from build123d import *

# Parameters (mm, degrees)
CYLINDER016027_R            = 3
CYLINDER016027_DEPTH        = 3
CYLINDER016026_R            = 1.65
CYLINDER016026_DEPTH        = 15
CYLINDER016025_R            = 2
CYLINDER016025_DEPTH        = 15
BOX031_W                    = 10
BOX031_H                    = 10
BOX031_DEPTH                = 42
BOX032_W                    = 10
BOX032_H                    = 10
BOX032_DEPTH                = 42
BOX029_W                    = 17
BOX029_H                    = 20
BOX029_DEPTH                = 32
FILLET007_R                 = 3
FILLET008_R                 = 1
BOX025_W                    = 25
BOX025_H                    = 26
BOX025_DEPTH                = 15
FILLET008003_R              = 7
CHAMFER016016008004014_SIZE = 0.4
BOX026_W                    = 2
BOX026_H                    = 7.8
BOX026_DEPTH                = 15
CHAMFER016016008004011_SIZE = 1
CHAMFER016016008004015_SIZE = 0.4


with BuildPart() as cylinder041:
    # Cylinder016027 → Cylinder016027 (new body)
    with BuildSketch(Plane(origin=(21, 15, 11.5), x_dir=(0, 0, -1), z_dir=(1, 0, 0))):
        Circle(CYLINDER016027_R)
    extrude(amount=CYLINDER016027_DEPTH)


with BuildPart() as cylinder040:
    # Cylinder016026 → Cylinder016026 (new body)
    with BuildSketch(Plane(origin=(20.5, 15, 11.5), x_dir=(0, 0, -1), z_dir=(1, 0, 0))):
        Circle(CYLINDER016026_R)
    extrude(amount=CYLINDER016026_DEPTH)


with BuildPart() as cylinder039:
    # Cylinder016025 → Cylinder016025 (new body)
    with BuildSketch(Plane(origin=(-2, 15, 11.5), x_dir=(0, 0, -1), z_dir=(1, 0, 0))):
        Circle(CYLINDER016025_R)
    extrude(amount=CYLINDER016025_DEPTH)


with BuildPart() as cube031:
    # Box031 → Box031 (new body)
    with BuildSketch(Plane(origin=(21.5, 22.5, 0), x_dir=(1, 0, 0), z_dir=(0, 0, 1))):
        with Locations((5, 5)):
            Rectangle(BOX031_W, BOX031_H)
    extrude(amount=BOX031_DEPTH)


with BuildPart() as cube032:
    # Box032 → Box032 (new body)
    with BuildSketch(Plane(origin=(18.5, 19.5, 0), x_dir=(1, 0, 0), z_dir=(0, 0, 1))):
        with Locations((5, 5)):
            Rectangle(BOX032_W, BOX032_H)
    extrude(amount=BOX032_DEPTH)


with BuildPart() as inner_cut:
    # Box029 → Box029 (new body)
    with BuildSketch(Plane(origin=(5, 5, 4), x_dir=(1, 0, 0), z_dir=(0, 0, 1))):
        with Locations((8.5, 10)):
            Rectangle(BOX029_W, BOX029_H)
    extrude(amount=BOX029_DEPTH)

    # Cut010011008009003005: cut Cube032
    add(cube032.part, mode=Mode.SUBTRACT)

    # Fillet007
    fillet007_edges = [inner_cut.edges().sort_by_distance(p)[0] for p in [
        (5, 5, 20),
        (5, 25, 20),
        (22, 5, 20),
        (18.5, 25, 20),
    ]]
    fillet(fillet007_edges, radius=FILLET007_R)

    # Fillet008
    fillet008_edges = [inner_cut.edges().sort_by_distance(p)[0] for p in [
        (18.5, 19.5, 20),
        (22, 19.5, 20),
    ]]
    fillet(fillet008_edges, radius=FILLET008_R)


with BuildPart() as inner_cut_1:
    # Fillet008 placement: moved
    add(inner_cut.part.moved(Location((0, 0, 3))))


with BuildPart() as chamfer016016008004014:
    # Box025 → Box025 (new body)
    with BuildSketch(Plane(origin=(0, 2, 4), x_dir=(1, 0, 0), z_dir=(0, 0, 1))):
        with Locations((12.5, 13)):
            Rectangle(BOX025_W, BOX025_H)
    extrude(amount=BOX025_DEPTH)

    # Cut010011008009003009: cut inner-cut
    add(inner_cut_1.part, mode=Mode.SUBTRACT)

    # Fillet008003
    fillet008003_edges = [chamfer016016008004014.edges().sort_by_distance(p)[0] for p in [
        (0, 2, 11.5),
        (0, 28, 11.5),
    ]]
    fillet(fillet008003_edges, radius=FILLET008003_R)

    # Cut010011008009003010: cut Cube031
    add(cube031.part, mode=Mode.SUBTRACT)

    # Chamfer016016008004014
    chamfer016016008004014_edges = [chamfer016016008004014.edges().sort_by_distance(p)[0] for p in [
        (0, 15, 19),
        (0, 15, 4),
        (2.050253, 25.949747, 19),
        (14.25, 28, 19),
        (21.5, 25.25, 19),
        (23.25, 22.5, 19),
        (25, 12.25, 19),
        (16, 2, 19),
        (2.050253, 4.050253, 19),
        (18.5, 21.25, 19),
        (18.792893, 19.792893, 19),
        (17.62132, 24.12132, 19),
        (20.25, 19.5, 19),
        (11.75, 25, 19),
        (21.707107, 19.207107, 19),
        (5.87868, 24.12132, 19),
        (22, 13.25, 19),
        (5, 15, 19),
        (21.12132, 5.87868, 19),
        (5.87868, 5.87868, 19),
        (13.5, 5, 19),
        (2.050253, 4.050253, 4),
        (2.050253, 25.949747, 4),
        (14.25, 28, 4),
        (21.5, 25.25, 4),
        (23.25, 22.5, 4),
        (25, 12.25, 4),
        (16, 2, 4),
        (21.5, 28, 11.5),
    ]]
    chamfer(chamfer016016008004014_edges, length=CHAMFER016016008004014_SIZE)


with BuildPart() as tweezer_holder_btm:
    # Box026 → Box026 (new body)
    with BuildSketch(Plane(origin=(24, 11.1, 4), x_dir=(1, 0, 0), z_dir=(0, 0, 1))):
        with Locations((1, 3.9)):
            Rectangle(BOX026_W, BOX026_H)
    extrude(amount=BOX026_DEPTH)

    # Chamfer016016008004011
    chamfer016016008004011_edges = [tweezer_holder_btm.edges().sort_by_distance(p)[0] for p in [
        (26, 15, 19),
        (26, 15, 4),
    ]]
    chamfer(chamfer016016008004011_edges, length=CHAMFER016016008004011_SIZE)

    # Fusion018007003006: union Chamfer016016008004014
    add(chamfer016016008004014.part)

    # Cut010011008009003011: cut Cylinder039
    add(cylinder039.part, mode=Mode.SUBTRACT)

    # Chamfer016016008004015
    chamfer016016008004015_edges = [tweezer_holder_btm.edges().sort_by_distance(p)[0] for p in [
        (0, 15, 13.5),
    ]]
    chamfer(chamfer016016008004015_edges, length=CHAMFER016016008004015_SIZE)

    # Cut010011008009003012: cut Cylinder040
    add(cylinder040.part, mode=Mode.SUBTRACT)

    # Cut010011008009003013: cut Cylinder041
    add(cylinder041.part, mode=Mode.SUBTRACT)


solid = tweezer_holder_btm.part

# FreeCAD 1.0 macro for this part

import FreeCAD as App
import Part
import Sketcher
from FreeCAD import Vector
Q = App.Units.Quantity


def edges_at(feature, points):
    """Names of the edges that pass closest to the given points."""
    edges = feature.Shape.Edges
    near = lambda p: min(range(len(edges)), key=lambda i: edges[i].distToShape(Part.Vertex(*p))[0])
    return sorted({f"Edge{near(p) + 1}" for p in points})

doc = App.newDocument("Part")
body = doc.addObject("PartDesign::Body", "Body")

# Sketch on YZ plane
sketch1 = body.newObject("Sketcher::SketchObject", "Sketch")
sketch1.AttachmentSupport = (doc.getObject("YZ_Plane"), [""])
sketch1.MapMode = "FlatFace"
sketch1.AttachmentOffset = App.Placement(Vector(0, 0, 21), App.Rotation())
sketch1.addGeometry(Part.Circle(Vector(15, 11.5, 0), Vector(0, 0, 1), 3), False)
sketch1.addConstraint([
    Sketcher.Constraint("Diameter", 0, Q("6 mm")),
    Sketcher.Constraint("DistanceX", -1, 1, 0, 3, Q("15 mm")),
    Sketcher.Constraint("DistanceY", -1, 1, 0, 3, Q("11.5 mm")),
])
pad1 = body.newObject("PartDesign::Pad", "Pad")
pad1.Profile = sketch1
pad1.Length = 3
body2 = doc.addObject("PartDesign::Body", "Body001")

# Sketch on YZ plane
sketch2 = body2.newObject("Sketcher::SketchObject", "Sketch001")
sketch2.AttachmentSupport = (doc.getObject("YZ_Plane001"), [""])
sketch2.MapMode = "FlatFace"
sketch2.AttachmentOffset = App.Placement(Vector(0, 0, 20.5), App.Rotation())
sketch2.addGeometry(Part.Circle(Vector(15, 11.5, 0), Vector(0, 0, 1), 1.6), False)
sketch2.addConstraint([
    Sketcher.Constraint("Diameter", 0, Q("3.3 mm")),
    Sketcher.Constraint("DistanceX", -1, 1, 0, 3, Q("15 mm")),
    Sketcher.Constraint("DistanceY", -1, 1, 0, 3, Q("11.5 mm")),
])
pad2 = body2.newObject("PartDesign::Pad", "Pad001")
pad2.Profile = sketch2
pad2.Length = 15
body3 = doc.addObject("PartDesign::Body", "Body002")

# Sketch on YZ plane
sketch3 = body3.newObject("Sketcher::SketchObject", "Sketch002")
sketch3.AttachmentSupport = (doc.getObject("YZ_Plane002"), [""])
sketch3.MapMode = "FlatFace"
sketch3.AttachmentOffset = App.Placement(Vector(0, 0, -2), App.Rotation())
sketch3.addGeometry(Part.Circle(Vector(15, 11.5, 0), Vector(0, 0, 1), 2), False)
sketch3.addConstraint([
    Sketcher.Constraint("Diameter", 0, Q("4 mm")),
    Sketcher.Constraint("DistanceX", -1, 1, 0, 3, Q("15 mm")),
    Sketcher.Constraint("DistanceY", -1, 1, 0, 3, Q("11.5 mm")),
])
pad3 = body3.newObject("PartDesign::Pad", "Pad002")
pad3.Profile = sketch3
pad3.Length = 15
body4 = doc.addObject("PartDesign::Body", "Body003")

# Sketch on XY plane
sketch4 = body4.newObject("Sketcher::SketchObject", "Sketch003")
sketch4.AttachmentSupport = (doc.getObject("XY_Plane003"), [""])
sketch4.MapMode = "FlatFace"
sketch4.addGeometry([
    Part.LineSegment(Vector(22, 32, 0), Vector(22, 22, 0)),
    Part.LineSegment(Vector(22, 22, 0), Vector(32, 22, 0)),
    Part.LineSegment(Vector(32, 22, 0), Vector(32, 32, 0)),
    Part.LineSegment(Vector(32, 32, 0), Vector(22, 32, 0)),
], False)
sketch4.addConstraint([
    Sketcher.Constraint("Coincident", 0, 2, 1, 1),
    Sketcher.Constraint("Coincident", 1, 2, 2, 1),
    Sketcher.Constraint("Coincident", 2, 2, 3, 1),
    Sketcher.Constraint("Coincident", 3, 2, 0, 1),
    Sketcher.Constraint("Vertical", 0),
    Sketcher.Constraint("Horizontal", 1),
    Sketcher.Constraint("Vertical", 2),
    Sketcher.Constraint("Horizontal", 3),
    Sketcher.Constraint("Equal", 3, 0),
    Sketcher.Constraint("DistanceX", 1, 1, 1, 2, Q("10 mm")),
    Sketcher.Constraint("DistanceX", -1, 1, 0, 2, Q("21.5 mm")),
    Sketcher.Constraint("DistanceY", -1, 1, 0, 2, Q("22.5 mm")),
])
pad4 = body4.newObject("PartDesign::Pad", "Pad003")
pad4.Profile = sketch4
pad4.Length = 42
body5 = doc.addObject("PartDesign::Body", "Body004")

# Sketch on XY plane
sketch5 = body5.newObject("Sketcher::SketchObject", "Sketch004")
sketch5.AttachmentSupport = (doc.getObject("XY_Plane004"), [""])
sketch5.MapMode = "FlatFace"
sketch5.addGeometry([
    Part.LineSegment(Vector(18, 30, 0), Vector(18, 20, 0)),
    Part.LineSegment(Vector(18, 20, 0), Vector(28, 20, 0)),
    Part.LineSegment(Vector(28, 20, 0), Vector(28, 30, 0)),
    Part.LineSegment(Vector(28, 30, 0), Vector(18, 30, 0)),
], False)
sketch5.addConstraint([
    Sketcher.Constraint("Coincident", 0, 2, 1, 1),
    Sketcher.Constraint("Coincident", 1, 2, 2, 1),
    Sketcher.Constraint("Coincident", 2, 2, 3, 1),
    Sketcher.Constraint("Coincident", 3, 2, 0, 1),
    Sketcher.Constraint("Vertical", 0),
    Sketcher.Constraint("Horizontal", 1),
    Sketcher.Constraint("Vertical", 2),
    Sketcher.Constraint("Horizontal", 3),
    Sketcher.Constraint("Equal", 3, 0),
    Sketcher.Constraint("DistanceX", 1, 1, 1, 2, Q("10 mm")),
    Sketcher.Constraint("DistanceX", -1, 1, 0, 2, Q("18.5 mm")),
    Sketcher.Constraint("DistanceY", -1, 1, 0, 2, Q("19.5 mm")),
])
pad5 = body5.newObject("PartDesign::Pad", "Pad004")
pad5.Profile = sketch5
pad5.Length = 42
body6 = doc.addObject("PartDesign::Body", "Body005")

# Sketch on XY plane
sketch6 = body6.newObject("Sketcher::SketchObject", "Sketch005")
sketch6.AttachmentSupport = (doc.getObject("XY_Plane005"), [""])
sketch6.MapMode = "FlatFace"
sketch6.AttachmentOffset = App.Placement(Vector(0, 0, 4), App.Rotation())
sketch6.addGeometry([
    Part.LineSegment(Vector(5, 25, 0), Vector(5, 5, 0)),
    Part.LineSegment(Vector(5, 5, 0), Vector(22, 5, 0)),
    Part.LineSegment(Vector(22, 5, 0), Vector(22, 25, 0)),
    Part.LineSegment(Vector(22, 25, 0), Vector(5, 25, 0)),
], False)
sketch6.addConstraint([
    Sketcher.Constraint("Coincident", 0, 2, 1, 1),
    Sketcher.Constraint("Coincident", 1, 2, 2, 1),
    Sketcher.Constraint("Coincident", 2, 2, 3, 1),
    Sketcher.Constraint("Coincident", 3, 2, 0, 1),
    Sketcher.Constraint("Vertical", 0),
    Sketcher.Constraint("Horizontal", 1),
    Sketcher.Constraint("Vertical", 2),
    Sketcher.Constraint("Horizontal", 3),
    Sketcher.Constraint("DistanceX", 1, 1, 1, 2, Q("17 mm")),
    Sketcher.Constraint("DistanceY", 0, 2, 0, 1, Q("20 mm")),
    Sketcher.Constraint("DistanceX", -1, 1, 0, 2, Q("5 mm")),
    Sketcher.Constraint("DistanceY", -1, 1, 0, 2, Q("5 mm")),
])
pad6 = body6.newObject("PartDesign::Pad", "Pad005")
pad6.Profile = sketch6
pad6.Length = 32
doc.recompute()

boolean = body6.newObject("PartDesign::Boolean", "Boolean")
boolean.Type = "Cut"
boolean.addObjects([body5])
doc.recompute()

fillet = body6.newObject("PartDesign::Fillet", "Fillet")
fillet.Base = (boolean, edges_at(boolean, [
    (5, 5, 20),
    (5, 25, 20),
    (22, 5, 20),
    (18.5, 25, 20),
]))
fillet.Radius = 3
doc.recompute()

fillet2 = body6.newObject("PartDesign::Fillet", "Fillet001")
fillet2.Base = (fillet, edges_at(fillet, [(18.5, 19.5, 20), (22, 19.5, 20)]))
fillet2.Radius = 1
body7 = doc.addObject("PartDesign::Body", "Body006")
doc.recompute()

body6.Placement = App.Placement(Vector(0, 0, 3), App.Rotation(Vector(0, 0, 1), 0))
boolean2 = body7.newObject("PartDesign::Boolean", "Boolean001")
boolean2.Type = "Fuse"
boolean2.addObjects([body6])
body8 = doc.addObject("PartDesign::Body", "Body007")

# Sketch on XY plane
sketch7 = body8.newObject("Sketcher::SketchObject", "Sketch006")
sketch7.AttachmentSupport = (doc.getObject("XY_Plane007"), [""])
sketch7.MapMode = "FlatFace"
sketch7.AttachmentOffset = App.Placement(Vector(0, 0, 4), App.Rotation())
sketch7.addGeometry([
    Part.LineSegment(Vector(0, 28, 0), Vector(0, 2, 0)),
    Part.LineSegment(Vector(0, 2, 0), Vector(25, 2, 0)),
    Part.LineSegment(Vector(25, 2, 0), Vector(25, 28, 0)),
    Part.LineSegment(Vector(25, 28, 0), Vector(0, 28, 0)),
], False)
sketch7.addConstraint([
    Sketcher.Constraint("Coincident", 0, 2, 1, 1),
    Sketcher.Constraint("Coincident", 1, 2, 2, 1),
    Sketcher.Constraint("Coincident", 2, 2, 3, 1),
    Sketcher.Constraint("Coincident", 3, 2, 0, 1),
    Sketcher.Constraint("Vertical", 0),
    Sketcher.Constraint("Horizontal", 1),
    Sketcher.Constraint("Vertical", 2),
    Sketcher.Constraint("Horizontal", 3),
    Sketcher.Constraint("PointOnObject", 0, 2, -2),
    Sketcher.Constraint("DistanceX", 1, 1, 1, 2, Q("25 mm")),
    Sketcher.Constraint("DistanceY", 0, 2, 0, 1, Q("26 mm")),
    Sketcher.Constraint("DistanceY", -1, 1, 0, 2, Q("2 mm")),
])
pad7 = body8.newObject("PartDesign::Pad", "Pad006")
pad7.Profile = sketch7
pad7.Length = 15
doc.recompute()

boolean3 = body8.newObject("PartDesign::Boolean", "Boolean002")
boolean3.Type = "Cut"
boolean3.addObjects([body7])
doc.recompute()

fillet3 = body8.newObject("PartDesign::Fillet", "Fillet002")
fillet3.Base = (boolean3, edges_at(boolean3, [(0, 2, 11.5), (0, 28, 11.5)]))
fillet3.Radius = 7
doc.recompute()

boolean4 = body8.newObject("PartDesign::Boolean", "Boolean003")
boolean4.Type = "Cut"
boolean4.addObjects([body4])
doc.recompute()

chamfer = body8.newObject("PartDesign::Chamfer", "Chamfer")
chamfer.Base = (boolean4, edges_at(boolean4, [
    (0, 15, 19),
    (0, 15, 4),
    (2.05, 25.95, 19),
    (14.25, 28, 19),
    (21.5, 25.25, 19),
    (23.25, 22.5, 19),
    (25, 12.25, 19),
    (16, 2, 19),
    (2.05, 4.05, 19),
    (18.5, 21.25, 19),
    (18.793, 19.793, 19),
    (17.621, 24.121, 19),
    (20.25, 19.5, 19),
    (11.75, 25, 19),
    (21.707, 19.207, 19),
    (5.879, 24.121, 19),
    (22, 13.25, 19),
    (5, 15, 19),
    (21.121, 5.879, 19),
    (5.879, 5.879, 19),
    (13.5, 5, 19),
    (2.05, 4.05, 4),
    (2.05, 25.95, 4),
    (14.25, 28, 4),
    (21.5, 25.25, 4),
    (23.25, 22.5, 4),
    (25, 12.25, 4),
    (16, 2, 4),
    (21.5, 28, 11.5),
]))
chamfer.Size = 0.4
body9 = doc.addObject("PartDesign::Body", "Body008")

# Sketch on XY plane
sketch8 = body9.newObject("Sketcher::SketchObject", "Sketch007")
sketch8.AttachmentSupport = (doc.getObject("XY_Plane008"), [""])
sketch8.MapMode = "FlatFace"
sketch8.AttachmentOffset = App.Placement(Vector(0, 0, 4), App.Rotation())
sketch8.addGeometry([
    Part.LineSegment(Vector(24, 18.9, 0), Vector(24, 11.1, 0)),
    Part.LineSegment(Vector(24, 11.1, 0), Vector(26, 11.1, 0)),
    Part.LineSegment(Vector(26, 11.1, 0), Vector(26, 18.9, 0)),
    Part.LineSegment(Vector(26, 18.9, 0), Vector(24, 18.9, 0)),
], False)
sketch8.addConstraint([
    Sketcher.Constraint("Coincident", 0, 2, 1, 1),
    Sketcher.Constraint("Coincident", 1, 2, 2, 1),
    Sketcher.Constraint("Coincident", 2, 2, 3, 1),
    Sketcher.Constraint("Coincident", 3, 2, 0, 1),
    Sketcher.Constraint("Vertical", 0),
    Sketcher.Constraint("Horizontal", 1),
    Sketcher.Constraint("Vertical", 2),
    Sketcher.Constraint("Horizontal", 3),
    Sketcher.Constraint("DistanceX", 1, 1, 1, 2, Q("2 mm")),
    Sketcher.Constraint("DistanceY", 0, 2, 0, 1, Q("7.8 mm")),
    Sketcher.Constraint("DistanceX", -1, 1, 0, 2, Q("24 mm")),
    Sketcher.Constraint("DistanceY", -1, 1, 0, 2, Q("11.1 mm")),
])
pad8 = body9.newObject("PartDesign::Pad", "Pad007")
pad8.Profile = sketch8
pad8.Length = 15
doc.recompute()

chamfer2 = body9.newObject("PartDesign::Chamfer", "Chamfer001")
chamfer2.Base = (pad8, edges_at(pad8, [(26, 15, 19), (26, 15, 4)]))
chamfer2.Size = 1
doc.recompute()

boolean5 = body9.newObject("PartDesign::Boolean", "Boolean004")
boolean5.Type = "Fuse"
boolean5.addObjects([body8])
doc.recompute()

boolean6 = body9.newObject("PartDesign::Boolean", "Boolean005")
boolean6.Type = "Cut"
boolean6.addObjects([body3])
doc.recompute()

chamfer3 = body9.newObject("PartDesign::Chamfer", "Chamfer002")
chamfer3.Base = (boolean6, edges_at(boolean6, [(0, 15, 13.5)]))
chamfer3.Size = 0.4
doc.recompute()

boolean7 = body9.newObject("PartDesign::Boolean", "Boolean006")
boolean7.Type = "Cut"
boolean7.addObjects([body2])
doc.recompute()

boolean8 = body9.newObject("PartDesign::Boolean", "Boolean007")
boolean8.Type = "Cut"
boolean8.addObjects([body])

doc.recompute()
